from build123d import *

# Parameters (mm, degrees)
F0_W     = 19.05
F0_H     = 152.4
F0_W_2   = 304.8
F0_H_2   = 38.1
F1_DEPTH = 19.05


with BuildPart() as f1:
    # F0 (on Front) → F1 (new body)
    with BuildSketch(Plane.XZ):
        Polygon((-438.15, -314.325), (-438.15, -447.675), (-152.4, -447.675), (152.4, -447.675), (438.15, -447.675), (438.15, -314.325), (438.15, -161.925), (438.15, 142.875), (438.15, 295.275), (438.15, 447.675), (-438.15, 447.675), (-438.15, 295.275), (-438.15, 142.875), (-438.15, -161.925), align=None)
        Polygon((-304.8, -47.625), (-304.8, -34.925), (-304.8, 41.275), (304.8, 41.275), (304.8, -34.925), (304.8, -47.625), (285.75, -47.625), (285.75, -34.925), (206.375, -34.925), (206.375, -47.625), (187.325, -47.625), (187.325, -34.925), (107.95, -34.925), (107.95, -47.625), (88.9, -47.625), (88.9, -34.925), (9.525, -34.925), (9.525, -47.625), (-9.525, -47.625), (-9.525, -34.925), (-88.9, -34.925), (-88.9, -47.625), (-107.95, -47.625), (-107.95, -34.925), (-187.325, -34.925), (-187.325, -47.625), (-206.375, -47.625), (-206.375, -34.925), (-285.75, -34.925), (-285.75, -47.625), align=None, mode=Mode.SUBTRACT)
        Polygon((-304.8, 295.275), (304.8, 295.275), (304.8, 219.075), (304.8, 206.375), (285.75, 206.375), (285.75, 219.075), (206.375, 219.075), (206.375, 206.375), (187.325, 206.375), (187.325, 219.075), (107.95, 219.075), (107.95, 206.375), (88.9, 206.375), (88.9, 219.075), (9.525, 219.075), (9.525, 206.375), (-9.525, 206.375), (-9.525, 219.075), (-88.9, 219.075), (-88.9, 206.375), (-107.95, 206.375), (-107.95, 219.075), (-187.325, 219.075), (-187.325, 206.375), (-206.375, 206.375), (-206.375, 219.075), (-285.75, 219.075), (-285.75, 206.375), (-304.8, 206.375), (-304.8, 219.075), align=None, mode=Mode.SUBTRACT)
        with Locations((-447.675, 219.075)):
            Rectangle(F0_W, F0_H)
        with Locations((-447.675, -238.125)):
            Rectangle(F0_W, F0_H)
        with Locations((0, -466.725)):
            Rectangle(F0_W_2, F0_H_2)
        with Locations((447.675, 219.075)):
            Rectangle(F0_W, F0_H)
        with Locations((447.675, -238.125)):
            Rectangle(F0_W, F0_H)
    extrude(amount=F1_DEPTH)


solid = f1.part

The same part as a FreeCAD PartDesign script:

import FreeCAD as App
import Part
import Sketcher

V = App.Vector
Q = App.Units.Quantity


def add_polygon(sketch, points):
    """Adds a closed chain of lines whose ends are joined by coincident constraints."""
    first, n = sketch.GeometryCount, len(points)
    for a, b in zip(points, points[1:] + points[:1]):
        sketch.addGeometry(Part.LineSegment(App.Vector(*a, 0), App.Vector(*b, 0)), False)
    for i in range(n):
        sketch.addConstraint(Sketcher.Constraint("Coincident", first + i, 2, first + (i + 1) % n, 1))

doc = App.newDocument("Part")
body = doc.addObject("PartDesign::Body", "Body")

# Sketch on XZ plane
sketch1 = doc.addObject("Sketcher::SketchObject", "Sketch")
body.addObject(sketch1)
sketch1.AttachmentSupport = (doc.XZ_Plane, [""])
sketch1.MapMode = "FlatFace"
add_polygon(sketch1, [(-438, -314), (-438, -448), (-152, -448), (-152, -486), (152, -486), (152, -448), (438, -448), (438, -314), (457, -314), (457, -162), (438, -162), (438, 143), (457, 143), (457, 295), (438, 295), (438, 448), (-438, 448), (-438, 295), (-457, 295), (-457, 143), (-438, 143), (-438, -162), (-457, -162), (-457, -314)])  # lines 0-23
add_polygon(sketch1, [(-286, -48), (-305, -48), (-305, 41), (305, 41), (305, -48), (286, -48), (286, -35), (206, -35), (206, -48), (187, -48), (187, -35), (108, -35), (108, -48), (89, -48), (89, -35), (10, -35), (10, -48), (-10, -48), (-10, -35), (-89, -35), (-89, -48), (-108, -48), (-108, -35), (-187, -35), (-187, -48), (-206, -48), (-206, -35), (-286, -35)])  # lines 24-51
add_polygon(sketch1, [(-305, 206), (-305, 295), (305, 295), (305, 206), (286, 206), (286, 219), (206, 219), (206, 206), (187, 206), (187, 219), (108, 219), (108, 206), (89, 206), (89, 219), (10, 219), (10, 206), (-10, 206), (-10, 219), (-89, 219), (-89, 206), (-108, 206), (-108, 219), (-187, 219), (-187, 206), (-206, 206), (-206, 219), (-286, 219), (-286, 206)])  # lines 52-79
sketch1.addConstraint([
    Sketcher.Constraint("Vertical", 0),
    Sketcher.Constraint("Horizontal", 1),
    Sketcher.Constraint("Vertical", 2),
    Sketcher.Constraint("Horizontal", 3),
    Sketcher.Constraint("Vertical", 4),
    Sketcher.Constraint("Horizontal", 5),
    Sketcher.Constraint("Vertical", 6),
    Sketcher.Constraint("Horizontal", 7),
    Sketcher.Constraint("Vertical", 8),
    Sketcher.Constraint("Horizontal", 9),
    Sketcher.Constraint("Vertical", 10),
    Sketcher.Constraint("Horizontal", 11),
    Sketcher.Constraint("Vertical", 12),
    Sketcher.Constraint("Horizontal", 13),
    Sketcher.Constraint("Vertical", 14),
    Sketcher.Constraint("Horizontal", 15),
    Sketcher.Constraint("Vertical", 16),
    Sketcher.Constraint("Horizontal", 17),
    Sketcher.Constraint("Vertical", 18),
    Sketcher.Constraint("Horizontal", 19),
    Sketcher.Constraint("Vertical", 20),
    Sketcher.Constraint("Horizontal", 21),
    Sketcher.Constraint("Vertical", 22),
    Sketcher.Constraint("Horizontal", 23),
    Sketcher.Constraint("Horizontal", 24),
    Sketcher.Constraint("Vertical", 25),
    Sketcher.Constraint("Horizontal", 26),
    Sketcher.Constraint("Vertical", 27),
    Sketcher.Constraint("Horizontal", 28),
    Sketcher.Constraint("Vertical", 29),
    Sketcher.Constraint("Horizontal", 30),
    Sketcher.Constraint("Vertical", 31),
    Sketcher.Constraint("Horizontal", 32),
    Sketcher.Constraint("Vertical", 33),
    Sketcher.Constraint("Horizontal", 34),
    Sketcher.Constraint("Vertical", 35),
    Sketcher.Constraint("Horizontal", 36),
    Sketcher.Constraint("Vertical", 37),
    Sketcher.Constraint("Horizontal", 38),
    Sketcher.Constraint("Vertical", 39),
    Sketcher.Constraint("Horizontal", 40),
    Sketcher.Constraint("Vertical", 41),
    Sketcher.Constraint("Horizontal", 42),
    Sketcher.Constraint("Vertical", 43),
    Sketcher.Constraint("Horizontal", 44),
    Sketcher.Constraint("Vertical", 45),
    Sketcher.Constraint("Horizontal", 46),
    Sketcher.Constraint("Vertical", 47),
    Sketcher.Constraint("Horizontal", 48),
    Sketcher.Constraint("Vertical", 49),
    Sketcher.Constraint("Horizontal", 50),
    Sketcher.Constraint("Vertical", 51),
    Sketcher.Constraint("Vertical", 52),
    Sketcher.Constraint("Horizontal", 53),
    Sketcher.Constraint("Vertical", 54),
    Sketcher.Constraint("Horizontal", 55),
    Sketcher.Constraint("Vertical", 56),
    Sketcher.Constraint("Horizontal", 57),
    Sketcher.Constraint("Vertical", 58),
    Sketcher.Constraint("Horizontal", 59),
    Sketcher.Constraint("Vertical", 60),
    Sketcher.Constraint("Horizontal", 61),
    Sketcher.Constraint("Vertical", 62),
    Sketcher.Constraint("Horizontal", 63),
    Sketcher.Constraint("Vertical", 64),
    Sketcher.Constraint("Horizontal", 65),
    Sketcher.Constraint("Vertical", 66),
    Sketcher.Constraint("Horizontal", 67),
    Sketcher.Constraint("Vertical", 68),
    Sketcher.Constraint("Horizontal", 69),
    Sketcher.Constraint("Vertical", 70),
    Sketcher.Constraint("Horizontal", 71),
    Sketcher.Constraint("Vertical", 72),
    Sketcher.Constraint("Horizontal", 73),
    Sketcher.Constraint("Vertical", 74),
    Sketcher.Constraint("Horizontal", 75),
    Sketcher.Constraint("Vertical", 76),
    Sketcher.Constraint("Horizontal", 77),
    Sketcher.Constraint("Vertical", 78),
    Sketcher.Constraint("Horizontal", 79),
    Sketcher.Constraint("Symmetric", 0, 2, 14, 2, -1, 1),
    Sketcher.Constraint("Symmetric", 5, 2, 15, 2, -1, 1),
    Sketcher.Constraint("Symmetric", 13, 2, 16, 2, -2),
    Sketcher.Constraint("Symmetric", 11, 2, 18, 2, -2),
    Sketcher.Constraint("Symmetric", 9, 2, 20, 2, -2),
    Sketcher.Constraint("Symmetric", 7, 2, 22, 2, -2),
    Sketcher.Constraint("Symmetric", 24, 2, 27, 2, -2),
    Sketcher.Constraint("Symmetric", 38, 2, 41, 2, -2),
    Sketcher.Constraint("Symmetric", 36, 2, 43, 2, -2),
    Sketcher.Constraint("Symmetric", 34, 2, 45, 2, -2),
    Sketcher.Constraint("Symmetric", 32, 2, 47, 2, -2),
    Sketcher.Constraint("Symmetric", 30, 2, 49, 2, -2),
    Sketcher.Constraint("Symmetric", 65, 2, 68, 2, -2),
    Sketcher.Constraint("Symmetric", 63, 2, 70, 2, -2),
    Sketcher.Constraint("Symmetric", 61, 2, 72, 2, -2),
    Sketcher.Constraint("Symmetric", 59, 2, 74, 2, -2),
    Sketcher.Constraint("Symmetric", 57, 2, 76, 2, -2),
    Sketcher.Constraint("Symmetric", 55, 2, 78, 2, -2),
    Sketcher.Constraint("Horizontal", 28, 2, 31, 2),
    Sketcher.Constraint("Horizontal", 30, 2, 33, 2),
    Sketcher.Constraint("Horizontal", 32, 2, 35, 2),
    Sketcher.Constraint("Horizontal", 34, 2, 37, 2),
    Sketcher.Constraint("Horizontal", 36, 2, 39, 2),
    Sketcher.Constraint("Horizontal", 17, 2, 52, 2),
    Sketcher.Constraint("Horizontal", 55, 2, 58, 2),
    Sketcher.Constraint("Horizontal", 57, 2, 60, 2),
    Sketcher.Constraint("Horizontal", 59, 2, 62, 2),
    Sketcher.Constraint("Horizontal", 61, 2, 64, 2),
    Sketcher.Constraint("Horizontal", 63, 2, 66, 2),
    Sketcher.Constraint("Vertical", 6, 2, 9, 2),
    Sketcher.Constraint("Vertical", 8, 2, 11, 2),
    Sketcher.Constraint("Vertical", 25, 2, 52, 2),
    Sketcher.Constraint("Vertical", 27, 2, 53, 2),
    Sketcher.Constraint("Vertical", 29, 2, 55, 2),
    Sketcher.Constraint("Vertical", 31, 2, 57, 2),
    Sketcher.Constraint("Vertical", 33, 2, 59, 2),
    Sketcher.Constraint("Vertical", 35, 2, 61, 2),
    Sketcher.Constraint("Vertical", 37, 2, 63, 2),
    Sketcher.Constraint("Vertical", 39, 2, 65, 2),
    Sketcher.Constraint("Vertical", 51, 2, 77, 2),
    Sketcher.Constraint("Equal", 1, 5),
    Sketcher.Constraint("Equal", 23, 24),
    Sketcher.Constraint("Equal", 28, 32),
    Sketcher.Constraint("Equal", 30, 34),
    Sketcher.Constraint("Equal", 32, 36),
    Sketcher.Constraint("Equal", 34, 38),
    Sketcher.Constraint("Equal", 36, 40),
    Sketcher.Constraint("Equal", 3, 10),
    Sketcher.Constraint("Equal", 8, 12),
    Sketcher.Constraint("Equal", 12, 14),
    Sketcher.Constraint("Equal", 27, 52),
    Sketcher.Constraint("Equal", 51, 56),
    Sketcher.Constraint("DistanceX", 3, 1, 3, 2, Q("12 in")),
    Sketcher.Constraint("DistanceX", 26, 1, 26, 2, Q("24 in")),
    Sketcher.Constraint("DistanceY", 8, 1, 8, 2, Q("6 in")),
    Sketcher.Constraint("DistanceX", 15, 2, 15, 1, Q("34.5 in")),
    Sketcher.Constraint("DistanceY", 2, 2, 2, 1, Q("1.5 in")),
    Sketcher.Constraint("DistanceY", 25, 1, 25, 2, Q("3.5 in")),
    Sketcher.Constraint("DistanceY", 29, 1, 29, 2, Q("0.5 in")),
    Sketcher.Constraint("DistanceX", -1, 1, 7, 2, Q("18 in")),
    Sketcher.Constraint("DistanceY", 0, 2, 0, 1, Q("5.25 in")),
    Sketcher.Constraint("DistanceY", 24, 2, -1, 1, Q("1.875 in")),
])
pad1 = doc.addObject("PartDesign::Pad", "Pad")
body.addObject(pad1)
pad1.Profile = sketch1
pad1.Length = Q("0.75 in")

doc.recompute()
